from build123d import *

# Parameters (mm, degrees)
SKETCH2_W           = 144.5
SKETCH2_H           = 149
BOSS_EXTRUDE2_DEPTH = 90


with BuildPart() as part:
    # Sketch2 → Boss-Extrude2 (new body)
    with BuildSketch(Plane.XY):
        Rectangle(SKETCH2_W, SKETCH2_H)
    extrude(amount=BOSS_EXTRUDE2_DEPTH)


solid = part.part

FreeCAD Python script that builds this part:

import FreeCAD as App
import Part
import Sketcher
from FreeCAD import Vector

doc = App.newDocument("Part")
body = doc.addObject("PartDesign::Body", "Body")

# Sketch on XY plane
sketch1 = doc.addObject("Sketcher::SketchObject", "Sketch")
body.addObject(sketch1)
sketch1.AttachmentSupport = (doc.XY_Plane, [""])
sketch1.MapMode = "FlatFace"
sketch1.addGeometry(Part.LineSegment(Vector(-72.25, 74.5, 0), Vector(-72.25, -74.5, 0)), False)
sketch1.addGeometry(Part.LineSegment(Vector(-72.25, -74.5, 0), Vector(72.25, -74.5, 0)), False)
sketch1.addGeometry(Part.LineSegment(Vector(72.25, -74.5, 0), Vector(72.25, 74.5, 0)), False)
sketch1.addGeometry(Part.LineSegment(Vector(72.25, 74.5, 0), Vector(-72.25, 74.5, 0)), False)
sketch1.addConstraint(Sketcher.Constraint("Coincident", 0, 2, 1, 1))
sketch1.addConstraint(Sketcher.Constraint("Coincident", 1, 2, 2, 1))
sketch1.addConstraint(Sketcher.Constraint("Coincident", 2, 2, 3, 1))
sketch1.addConstraint(Sketcher.Constraint("Coincident", 3, 2, 0, 1))
sketch1.addConstraint(Sketcher.Constraint("Vertical", 0))
sketch1.addConstraint(Sketcher.Constraint("Horizontal", 1))
sketch1.addConstraint(Sketcher.Constraint("Vertical", 2))
sketch1.addConstraint(Sketcher.Constraint("Horizontal", 3))
sketch1.addConstraint(Sketcher.Constraint("Symmetric", 0, 2, 2, 2, -1, 1))
sketch1.addConstraint(Sketcher.Constraint("DistanceY", 0, 2, 0, 1, 149.0))
sketch1.addConstraint(Sketcher.Constraint("DistanceX", 1, 1, 1, 2, 144.5))
pad1 = doc.addObject("PartDesign::Pad", "Pad")
body.addObject(pad1)
pad1.Profile = sketch1
pad1.Length = 90

doc.recompute()
